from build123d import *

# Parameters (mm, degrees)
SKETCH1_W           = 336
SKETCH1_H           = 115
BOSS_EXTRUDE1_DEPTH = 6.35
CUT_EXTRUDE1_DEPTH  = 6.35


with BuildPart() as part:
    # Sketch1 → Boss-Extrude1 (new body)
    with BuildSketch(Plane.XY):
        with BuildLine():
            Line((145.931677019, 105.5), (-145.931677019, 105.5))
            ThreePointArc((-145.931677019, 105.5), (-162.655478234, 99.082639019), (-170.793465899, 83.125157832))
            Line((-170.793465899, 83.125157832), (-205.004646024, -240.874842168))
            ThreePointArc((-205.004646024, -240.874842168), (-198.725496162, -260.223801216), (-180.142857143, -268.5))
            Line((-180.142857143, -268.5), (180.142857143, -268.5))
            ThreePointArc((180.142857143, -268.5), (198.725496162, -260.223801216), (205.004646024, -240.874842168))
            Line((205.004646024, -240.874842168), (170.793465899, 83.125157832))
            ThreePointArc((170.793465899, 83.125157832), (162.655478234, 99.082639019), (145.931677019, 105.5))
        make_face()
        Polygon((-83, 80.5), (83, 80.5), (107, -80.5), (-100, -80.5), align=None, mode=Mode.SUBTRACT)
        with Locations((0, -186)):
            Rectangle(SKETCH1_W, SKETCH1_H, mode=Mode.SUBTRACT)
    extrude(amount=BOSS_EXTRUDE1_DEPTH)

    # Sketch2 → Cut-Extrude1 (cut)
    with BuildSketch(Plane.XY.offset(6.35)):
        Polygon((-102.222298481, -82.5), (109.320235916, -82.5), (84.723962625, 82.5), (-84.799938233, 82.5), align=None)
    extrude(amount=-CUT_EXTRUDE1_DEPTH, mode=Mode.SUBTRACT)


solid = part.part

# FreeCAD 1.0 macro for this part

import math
import FreeCAD as App
import Part
import Sketcher

doc = App.newDocument("Part")
params = doc.addObject("Spreadsheet::Sheet", "Params")
for row, (alias, value) in enumerate([
    ("sketch1_radius", "25 mm"),
    ("sketch1_width", "336 mm"),
    ("sketch1_width2", "166 mm"),
    ("sketch1_width3", "207 mm"),
    ("sketch1_height", "115 mm"),
    ("pad1_length", "6.35 mm"),
    ("pocket1_length", "6.35 mm"),
], start=1):
    params.set(f"A{row}", alias)
    params.set(f"B{row}", "=" + value)
    params.setAlias(f"B{row}", alias)

body = doc.addObject("PartDesign::Body", "Body")

# Sketch on XY plane
sketch1 = body.newObject("Sketcher::SketchObject", "Sketch")
sketch1.AttachmentSupport = (doc.getObject("XY_Plane"), [""])
sketch1.MapMode = "FlatFace"
sketch1.addGeometry(Part.LineSegment(App.Vector(145.931677, 105.5, 0), App.Vector(-145.931677, 105.5, 0)), False)
sketch1.addGeometry(Part.ArcOfCircle(Part.Circle(App.Vector(-145.931677, 80.5, 0), App.Vector(0, 0, 1), 25), math.radians(90), math.radians(173.97247)), False)
sketch1.addGeometry(Part.LineSegment(App.Vector(-170.793466, 83.125158, 0), App.Vector(-205.004646, -240.874842, 0)), False)
sketch1.addGeometry(Part.ArcOfCircle(Part.Circle(App.Vector(-180.142857, -243.5, 0), App.Vector(0, 0, 1), 25), math.radians(173.97247), math.radians(270)), False)
sketch1.addGeometry(Part.LineSegment(App.Vector(-180.142857, -268.5, 0), App.Vector(180.142857, -268.5, 0)), False)
sketch1.addGeometry(Part.ArcOfCircle(Part.Circle(App.Vector(180.142857, -243.5, 0), App.Vector(0, 0, 1), 25), math.radians(-90), math.radians(6.02753)), False)
sketch1.addGeometry(Part.LineSegment(App.Vector(205.004646, -240.874842, 0), App.Vector(170.793466, 83.125158, 0)), False)
sketch1.addGeometry(Part.ArcOfCircle(Part.Circle(App.Vector(145.931677, 80.5, 0), App.Vector(0, 0, 1), 25), math.radians(6.02753), math.radians(90)), False)
sketch1.addGeometry(Part.LineSegment(App.Vector(168, -243.5, 0), App.Vector(-168, -243.5, 0)), False)
sketch1.addGeometry(Part.LineSegment(App.Vector(-168, -243.5, 0), App.Vector(-168, -128.5, 0)), False)
sketch1.addGeometry(Part.LineSegment(App.Vector(-168, -128.5, 0), App.Vector(168, -128.5, 0)), False)
sketch1.addGeometry(Part.LineSegment(App.Vector(168, -128.5, 0), App.Vector(168, -243.5, 0)), False)
sketch1.addGeometry(Part.LineSegment(App.Vector(-100, -80.5, 0), App.Vector(-83, 80.5, 0)), False)
sketch1.addGeometry(Part.LineSegment(App.Vector(-83, 80.5, 0), App.Vector(83, 80.5, 0)), False)
sketch1.addGeometry(Part.LineSegment(App.Vector(83, 80.5, 0), App.Vector(107, -80.5, 0)), False)
sketch1.addGeometry(Part.LineSegment(App.Vector(107, -80.5, 0), App.Vector(-100, -80.5, 0)), False)
sketch1.addConstraint(Sketcher.Constraint("Tangent", 0, 2, 1, 1))
sketch1.addConstraint(Sketcher.Constraint("Tangent", 1, 2, 2, 1))
sketch1.addConstraint(Sketcher.Constraint("Tangent", 2, 2, 3, 1))
sketch1.addConstraint(Sketcher.Constraint("Tangent", 3, 2, 4, 1))
sketch1.addConstraint(Sketcher.Constraint("Tangent", 4, 2, 5, 1))
sketch1.addConstraint(Sketcher.Constraint("Tangent", 5, 2, 6, 1))
sketch1.addConstraint(Sketcher.Constraint("Tangent", 6, 2, 7, 1))
sketch1.addConstraint(Sketcher.Constraint("Tangent", 7, 2, 0, 1))
sketch1.addConstraint(Sketcher.Constraint("Coincident", 8, 2, 9, 1))
sketch1.addConstraint(Sketcher.Constraint("Coincident", 9, 2, 10, 1))
sketch1.addConstraint(Sketcher.Constraint("Coincident", 10, 2, 11, 1))
sketch1.addConstraint(Sketcher.Constraint("Coincident", 11, 2, 8, 1))
sketch1.addConstraint(Sketcher.Constraint("Coincident", 12, 2, 13, 1))
sketch1.addConstraint(Sketcher.Constraint("Coincident", 13, 2, 14, 1))
sketch1.addConstraint(Sketcher.Constraint("Coincident", 14, 2, 15, 1))
sketch1.addConstraint(Sketcher.Constraint("Coincident", 15, 2, 12, 1))
sketch1.addConstraint(Sketcher.Constraint("Horizontal", 0))
sketch1.addConstraint(Sketcher.Constraint("Horizontal", 4))
sketch1.addConstraint(Sketcher.Constraint("Horizontal", 8))
sketch1.addConstraint(Sketcher.Constraint("Vertical", 9))
sketch1.addConstraint(Sketcher.Constraint("Horizontal", 10))
sketch1.addConstraint(Sketcher.Constraint("Vertical", 11))
sketch1.addConstraint(Sketcher.Constraint("Horizontal", 13))
sketch1.addConstraint(Sketcher.Constraint("Horizontal", 15))
sketch1.addConstraint(Sketcher.Constraint("Equal", 1, 3))
sketch1.addConstraint(Sketcher.Constraint("Equal", 3, 5))
sketch1.addConstraint(Sketcher.Constraint("Equal", 5, 7))
sketch1.addConstraint(Sketcher.Constraint("Symmetric", 2, 2, 5, 2, -2))
sketch1.addConstraint(Sketcher.Constraint("Parallel", 2, 12))
sketch1.addConstraint(Sketcher.Constraint("Horizontal", 5, 3, 8, 2))
sketch1.addConstraint(Sketcher.Constraint("Horizontal", 7, 3, 12, 2))
sketch1.addConstraint(Sketcher.Constraint("Radius", 1, 25.0))
sketch1.addConstraint(Sketcher.Constraint("DistanceX", 8, 2, 8, 1, 336.0))
sketch1.addConstraint(Sketcher.Constraint("DistanceX", 13, 1, 13, 2, 166.0))
sketch1.addConstraint(Sketcher.Constraint("DistanceX", 15, 2, 15, 1, 207.0))
sketch1.addConstraint(Sketcher.Constraint("DistanceY", 9, 1, 9, 2, 115.0))
sketch1.addConstraint(Sketcher.Constraint("DistanceX", 8, 2, -1, 1, 168.0))
sketch1.addConstraint(Sketcher.Constraint("DistanceX", 12, 2, -1, 1, 83.0))
sketch1.addConstraint(Sketcher.Constraint("DistanceX", -1, 1, 14, 2, 107.0))
sketch1.addConstraint(Sketcher.Constraint("DistanceY", 3, 3, 1, 3, 324.0))
sketch1.addConstraint(Sketcher.Constraint("DistanceY", 10, 2, 14, 2, 48.0))
sketch1.addConstraint(Sketcher.Constraint("DistanceY", -1, 1, 1, 3, 80.5))
sketch1.addConstraint(Sketcher.Constraint("DistanceX", 0, 2, 0, 1, 291.863354))
sketch1.setExpression("Constraints[31]", "Params.sketch1_radius")
sketch1.setExpression("Constraints[32]", "Params.sketch1_width")
sketch1.setExpression("Constraints[33]", "Params.sketch1_width2")
sketch1.setExpression("Constraints[34]", "Params.sketch1_width3")
sketch1.setExpression("Constraints[35]", "Params.sketch1_height")
pad1 = body.newObject("PartDesign::Pad", "Pad")
pad1.Profile = sketch1
pad1.setExpression("Length", "Params.pad1_length")

# Sketch on XY plane
sketch2 = body.newObject("Sketcher::SketchObject", "Sketch001")
sketch2.AttachmentSupport = (doc.getObject("XY_Plane"), [""])
sketch2.MapMode = "FlatFace"
sketch2.AttachmentOffset = App.Placement(App.Vector(0, 0, 6.35), App.Rotation())
sketch2.addGeometry(Part.LineSegment(App.Vector(-102.222298, -82.5, 0), App.Vector(109.320236, -82.5, 0)), False)
sketch2.addGeometry(Part.LineSegment(App.Vector(109.320236, -82.5, 0), App.Vector(84.723963, 82.5, 0)), False)
sketch2.addGeometry(Part.LineSegment(App.Vector(84.723963, 82.5, 0), App.Vector(-84.799938, 82.5, 0)), False)
sketch2.addGeometry(Part.LineSegment(App.Vector(-84.799938, 82.5, 0), App.Vector(-102.222298, -82.5, 0)), False)
sketch2.addConstraint(Sketcher.Constraint("Coincident", 0, 2, 1, 1))
sketch2.addConstraint(Sketcher.Constraint("Coincident", 1, 2, 2, 1))
sketch2.addConstraint(Sketcher.Constraint("Coincident", 2, 2, 3, 1))
sketch2.addConstraint(Sketcher.Constraint("Coincident", 3, 2, 0, 1))
sketch2.addConstraint(Sketcher.Constraint("Horizontal", 0))
sketch2.addConstraint(Sketcher.Constraint("Horizontal", 2))
sketch2.addConstraint(Sketcher.Constraint("DistanceY", 0, 2, 1, 2, 165.0))
sketch2.addConstraint(Sketcher.Constraint("DistanceY", 0, 2, -1, 1, 82.5))
sketch2.addConstraint(Sketcher.Constraint("DistanceX", 2, 2, 2, 1, 169.523901))
sketch2.addConstraint(Sketcher.Constraint("DistanceX", 3, 2, -1, 1, 102.222298))
sketch2.addConstraint(Sketcher.Constraint("Distance", 1, 166.82319))
sketch2.addConstraint(Sketcher.Constraint("DistanceX", 0, 1, 0, 2, 211.542534))
pocket1 = body.newObject("PartDesign::Pocket", "Pocket")
pocket1.Profile = sketch2
pocket1.setExpression("Length", "Params.pocket1_length")

doc.recompute()
